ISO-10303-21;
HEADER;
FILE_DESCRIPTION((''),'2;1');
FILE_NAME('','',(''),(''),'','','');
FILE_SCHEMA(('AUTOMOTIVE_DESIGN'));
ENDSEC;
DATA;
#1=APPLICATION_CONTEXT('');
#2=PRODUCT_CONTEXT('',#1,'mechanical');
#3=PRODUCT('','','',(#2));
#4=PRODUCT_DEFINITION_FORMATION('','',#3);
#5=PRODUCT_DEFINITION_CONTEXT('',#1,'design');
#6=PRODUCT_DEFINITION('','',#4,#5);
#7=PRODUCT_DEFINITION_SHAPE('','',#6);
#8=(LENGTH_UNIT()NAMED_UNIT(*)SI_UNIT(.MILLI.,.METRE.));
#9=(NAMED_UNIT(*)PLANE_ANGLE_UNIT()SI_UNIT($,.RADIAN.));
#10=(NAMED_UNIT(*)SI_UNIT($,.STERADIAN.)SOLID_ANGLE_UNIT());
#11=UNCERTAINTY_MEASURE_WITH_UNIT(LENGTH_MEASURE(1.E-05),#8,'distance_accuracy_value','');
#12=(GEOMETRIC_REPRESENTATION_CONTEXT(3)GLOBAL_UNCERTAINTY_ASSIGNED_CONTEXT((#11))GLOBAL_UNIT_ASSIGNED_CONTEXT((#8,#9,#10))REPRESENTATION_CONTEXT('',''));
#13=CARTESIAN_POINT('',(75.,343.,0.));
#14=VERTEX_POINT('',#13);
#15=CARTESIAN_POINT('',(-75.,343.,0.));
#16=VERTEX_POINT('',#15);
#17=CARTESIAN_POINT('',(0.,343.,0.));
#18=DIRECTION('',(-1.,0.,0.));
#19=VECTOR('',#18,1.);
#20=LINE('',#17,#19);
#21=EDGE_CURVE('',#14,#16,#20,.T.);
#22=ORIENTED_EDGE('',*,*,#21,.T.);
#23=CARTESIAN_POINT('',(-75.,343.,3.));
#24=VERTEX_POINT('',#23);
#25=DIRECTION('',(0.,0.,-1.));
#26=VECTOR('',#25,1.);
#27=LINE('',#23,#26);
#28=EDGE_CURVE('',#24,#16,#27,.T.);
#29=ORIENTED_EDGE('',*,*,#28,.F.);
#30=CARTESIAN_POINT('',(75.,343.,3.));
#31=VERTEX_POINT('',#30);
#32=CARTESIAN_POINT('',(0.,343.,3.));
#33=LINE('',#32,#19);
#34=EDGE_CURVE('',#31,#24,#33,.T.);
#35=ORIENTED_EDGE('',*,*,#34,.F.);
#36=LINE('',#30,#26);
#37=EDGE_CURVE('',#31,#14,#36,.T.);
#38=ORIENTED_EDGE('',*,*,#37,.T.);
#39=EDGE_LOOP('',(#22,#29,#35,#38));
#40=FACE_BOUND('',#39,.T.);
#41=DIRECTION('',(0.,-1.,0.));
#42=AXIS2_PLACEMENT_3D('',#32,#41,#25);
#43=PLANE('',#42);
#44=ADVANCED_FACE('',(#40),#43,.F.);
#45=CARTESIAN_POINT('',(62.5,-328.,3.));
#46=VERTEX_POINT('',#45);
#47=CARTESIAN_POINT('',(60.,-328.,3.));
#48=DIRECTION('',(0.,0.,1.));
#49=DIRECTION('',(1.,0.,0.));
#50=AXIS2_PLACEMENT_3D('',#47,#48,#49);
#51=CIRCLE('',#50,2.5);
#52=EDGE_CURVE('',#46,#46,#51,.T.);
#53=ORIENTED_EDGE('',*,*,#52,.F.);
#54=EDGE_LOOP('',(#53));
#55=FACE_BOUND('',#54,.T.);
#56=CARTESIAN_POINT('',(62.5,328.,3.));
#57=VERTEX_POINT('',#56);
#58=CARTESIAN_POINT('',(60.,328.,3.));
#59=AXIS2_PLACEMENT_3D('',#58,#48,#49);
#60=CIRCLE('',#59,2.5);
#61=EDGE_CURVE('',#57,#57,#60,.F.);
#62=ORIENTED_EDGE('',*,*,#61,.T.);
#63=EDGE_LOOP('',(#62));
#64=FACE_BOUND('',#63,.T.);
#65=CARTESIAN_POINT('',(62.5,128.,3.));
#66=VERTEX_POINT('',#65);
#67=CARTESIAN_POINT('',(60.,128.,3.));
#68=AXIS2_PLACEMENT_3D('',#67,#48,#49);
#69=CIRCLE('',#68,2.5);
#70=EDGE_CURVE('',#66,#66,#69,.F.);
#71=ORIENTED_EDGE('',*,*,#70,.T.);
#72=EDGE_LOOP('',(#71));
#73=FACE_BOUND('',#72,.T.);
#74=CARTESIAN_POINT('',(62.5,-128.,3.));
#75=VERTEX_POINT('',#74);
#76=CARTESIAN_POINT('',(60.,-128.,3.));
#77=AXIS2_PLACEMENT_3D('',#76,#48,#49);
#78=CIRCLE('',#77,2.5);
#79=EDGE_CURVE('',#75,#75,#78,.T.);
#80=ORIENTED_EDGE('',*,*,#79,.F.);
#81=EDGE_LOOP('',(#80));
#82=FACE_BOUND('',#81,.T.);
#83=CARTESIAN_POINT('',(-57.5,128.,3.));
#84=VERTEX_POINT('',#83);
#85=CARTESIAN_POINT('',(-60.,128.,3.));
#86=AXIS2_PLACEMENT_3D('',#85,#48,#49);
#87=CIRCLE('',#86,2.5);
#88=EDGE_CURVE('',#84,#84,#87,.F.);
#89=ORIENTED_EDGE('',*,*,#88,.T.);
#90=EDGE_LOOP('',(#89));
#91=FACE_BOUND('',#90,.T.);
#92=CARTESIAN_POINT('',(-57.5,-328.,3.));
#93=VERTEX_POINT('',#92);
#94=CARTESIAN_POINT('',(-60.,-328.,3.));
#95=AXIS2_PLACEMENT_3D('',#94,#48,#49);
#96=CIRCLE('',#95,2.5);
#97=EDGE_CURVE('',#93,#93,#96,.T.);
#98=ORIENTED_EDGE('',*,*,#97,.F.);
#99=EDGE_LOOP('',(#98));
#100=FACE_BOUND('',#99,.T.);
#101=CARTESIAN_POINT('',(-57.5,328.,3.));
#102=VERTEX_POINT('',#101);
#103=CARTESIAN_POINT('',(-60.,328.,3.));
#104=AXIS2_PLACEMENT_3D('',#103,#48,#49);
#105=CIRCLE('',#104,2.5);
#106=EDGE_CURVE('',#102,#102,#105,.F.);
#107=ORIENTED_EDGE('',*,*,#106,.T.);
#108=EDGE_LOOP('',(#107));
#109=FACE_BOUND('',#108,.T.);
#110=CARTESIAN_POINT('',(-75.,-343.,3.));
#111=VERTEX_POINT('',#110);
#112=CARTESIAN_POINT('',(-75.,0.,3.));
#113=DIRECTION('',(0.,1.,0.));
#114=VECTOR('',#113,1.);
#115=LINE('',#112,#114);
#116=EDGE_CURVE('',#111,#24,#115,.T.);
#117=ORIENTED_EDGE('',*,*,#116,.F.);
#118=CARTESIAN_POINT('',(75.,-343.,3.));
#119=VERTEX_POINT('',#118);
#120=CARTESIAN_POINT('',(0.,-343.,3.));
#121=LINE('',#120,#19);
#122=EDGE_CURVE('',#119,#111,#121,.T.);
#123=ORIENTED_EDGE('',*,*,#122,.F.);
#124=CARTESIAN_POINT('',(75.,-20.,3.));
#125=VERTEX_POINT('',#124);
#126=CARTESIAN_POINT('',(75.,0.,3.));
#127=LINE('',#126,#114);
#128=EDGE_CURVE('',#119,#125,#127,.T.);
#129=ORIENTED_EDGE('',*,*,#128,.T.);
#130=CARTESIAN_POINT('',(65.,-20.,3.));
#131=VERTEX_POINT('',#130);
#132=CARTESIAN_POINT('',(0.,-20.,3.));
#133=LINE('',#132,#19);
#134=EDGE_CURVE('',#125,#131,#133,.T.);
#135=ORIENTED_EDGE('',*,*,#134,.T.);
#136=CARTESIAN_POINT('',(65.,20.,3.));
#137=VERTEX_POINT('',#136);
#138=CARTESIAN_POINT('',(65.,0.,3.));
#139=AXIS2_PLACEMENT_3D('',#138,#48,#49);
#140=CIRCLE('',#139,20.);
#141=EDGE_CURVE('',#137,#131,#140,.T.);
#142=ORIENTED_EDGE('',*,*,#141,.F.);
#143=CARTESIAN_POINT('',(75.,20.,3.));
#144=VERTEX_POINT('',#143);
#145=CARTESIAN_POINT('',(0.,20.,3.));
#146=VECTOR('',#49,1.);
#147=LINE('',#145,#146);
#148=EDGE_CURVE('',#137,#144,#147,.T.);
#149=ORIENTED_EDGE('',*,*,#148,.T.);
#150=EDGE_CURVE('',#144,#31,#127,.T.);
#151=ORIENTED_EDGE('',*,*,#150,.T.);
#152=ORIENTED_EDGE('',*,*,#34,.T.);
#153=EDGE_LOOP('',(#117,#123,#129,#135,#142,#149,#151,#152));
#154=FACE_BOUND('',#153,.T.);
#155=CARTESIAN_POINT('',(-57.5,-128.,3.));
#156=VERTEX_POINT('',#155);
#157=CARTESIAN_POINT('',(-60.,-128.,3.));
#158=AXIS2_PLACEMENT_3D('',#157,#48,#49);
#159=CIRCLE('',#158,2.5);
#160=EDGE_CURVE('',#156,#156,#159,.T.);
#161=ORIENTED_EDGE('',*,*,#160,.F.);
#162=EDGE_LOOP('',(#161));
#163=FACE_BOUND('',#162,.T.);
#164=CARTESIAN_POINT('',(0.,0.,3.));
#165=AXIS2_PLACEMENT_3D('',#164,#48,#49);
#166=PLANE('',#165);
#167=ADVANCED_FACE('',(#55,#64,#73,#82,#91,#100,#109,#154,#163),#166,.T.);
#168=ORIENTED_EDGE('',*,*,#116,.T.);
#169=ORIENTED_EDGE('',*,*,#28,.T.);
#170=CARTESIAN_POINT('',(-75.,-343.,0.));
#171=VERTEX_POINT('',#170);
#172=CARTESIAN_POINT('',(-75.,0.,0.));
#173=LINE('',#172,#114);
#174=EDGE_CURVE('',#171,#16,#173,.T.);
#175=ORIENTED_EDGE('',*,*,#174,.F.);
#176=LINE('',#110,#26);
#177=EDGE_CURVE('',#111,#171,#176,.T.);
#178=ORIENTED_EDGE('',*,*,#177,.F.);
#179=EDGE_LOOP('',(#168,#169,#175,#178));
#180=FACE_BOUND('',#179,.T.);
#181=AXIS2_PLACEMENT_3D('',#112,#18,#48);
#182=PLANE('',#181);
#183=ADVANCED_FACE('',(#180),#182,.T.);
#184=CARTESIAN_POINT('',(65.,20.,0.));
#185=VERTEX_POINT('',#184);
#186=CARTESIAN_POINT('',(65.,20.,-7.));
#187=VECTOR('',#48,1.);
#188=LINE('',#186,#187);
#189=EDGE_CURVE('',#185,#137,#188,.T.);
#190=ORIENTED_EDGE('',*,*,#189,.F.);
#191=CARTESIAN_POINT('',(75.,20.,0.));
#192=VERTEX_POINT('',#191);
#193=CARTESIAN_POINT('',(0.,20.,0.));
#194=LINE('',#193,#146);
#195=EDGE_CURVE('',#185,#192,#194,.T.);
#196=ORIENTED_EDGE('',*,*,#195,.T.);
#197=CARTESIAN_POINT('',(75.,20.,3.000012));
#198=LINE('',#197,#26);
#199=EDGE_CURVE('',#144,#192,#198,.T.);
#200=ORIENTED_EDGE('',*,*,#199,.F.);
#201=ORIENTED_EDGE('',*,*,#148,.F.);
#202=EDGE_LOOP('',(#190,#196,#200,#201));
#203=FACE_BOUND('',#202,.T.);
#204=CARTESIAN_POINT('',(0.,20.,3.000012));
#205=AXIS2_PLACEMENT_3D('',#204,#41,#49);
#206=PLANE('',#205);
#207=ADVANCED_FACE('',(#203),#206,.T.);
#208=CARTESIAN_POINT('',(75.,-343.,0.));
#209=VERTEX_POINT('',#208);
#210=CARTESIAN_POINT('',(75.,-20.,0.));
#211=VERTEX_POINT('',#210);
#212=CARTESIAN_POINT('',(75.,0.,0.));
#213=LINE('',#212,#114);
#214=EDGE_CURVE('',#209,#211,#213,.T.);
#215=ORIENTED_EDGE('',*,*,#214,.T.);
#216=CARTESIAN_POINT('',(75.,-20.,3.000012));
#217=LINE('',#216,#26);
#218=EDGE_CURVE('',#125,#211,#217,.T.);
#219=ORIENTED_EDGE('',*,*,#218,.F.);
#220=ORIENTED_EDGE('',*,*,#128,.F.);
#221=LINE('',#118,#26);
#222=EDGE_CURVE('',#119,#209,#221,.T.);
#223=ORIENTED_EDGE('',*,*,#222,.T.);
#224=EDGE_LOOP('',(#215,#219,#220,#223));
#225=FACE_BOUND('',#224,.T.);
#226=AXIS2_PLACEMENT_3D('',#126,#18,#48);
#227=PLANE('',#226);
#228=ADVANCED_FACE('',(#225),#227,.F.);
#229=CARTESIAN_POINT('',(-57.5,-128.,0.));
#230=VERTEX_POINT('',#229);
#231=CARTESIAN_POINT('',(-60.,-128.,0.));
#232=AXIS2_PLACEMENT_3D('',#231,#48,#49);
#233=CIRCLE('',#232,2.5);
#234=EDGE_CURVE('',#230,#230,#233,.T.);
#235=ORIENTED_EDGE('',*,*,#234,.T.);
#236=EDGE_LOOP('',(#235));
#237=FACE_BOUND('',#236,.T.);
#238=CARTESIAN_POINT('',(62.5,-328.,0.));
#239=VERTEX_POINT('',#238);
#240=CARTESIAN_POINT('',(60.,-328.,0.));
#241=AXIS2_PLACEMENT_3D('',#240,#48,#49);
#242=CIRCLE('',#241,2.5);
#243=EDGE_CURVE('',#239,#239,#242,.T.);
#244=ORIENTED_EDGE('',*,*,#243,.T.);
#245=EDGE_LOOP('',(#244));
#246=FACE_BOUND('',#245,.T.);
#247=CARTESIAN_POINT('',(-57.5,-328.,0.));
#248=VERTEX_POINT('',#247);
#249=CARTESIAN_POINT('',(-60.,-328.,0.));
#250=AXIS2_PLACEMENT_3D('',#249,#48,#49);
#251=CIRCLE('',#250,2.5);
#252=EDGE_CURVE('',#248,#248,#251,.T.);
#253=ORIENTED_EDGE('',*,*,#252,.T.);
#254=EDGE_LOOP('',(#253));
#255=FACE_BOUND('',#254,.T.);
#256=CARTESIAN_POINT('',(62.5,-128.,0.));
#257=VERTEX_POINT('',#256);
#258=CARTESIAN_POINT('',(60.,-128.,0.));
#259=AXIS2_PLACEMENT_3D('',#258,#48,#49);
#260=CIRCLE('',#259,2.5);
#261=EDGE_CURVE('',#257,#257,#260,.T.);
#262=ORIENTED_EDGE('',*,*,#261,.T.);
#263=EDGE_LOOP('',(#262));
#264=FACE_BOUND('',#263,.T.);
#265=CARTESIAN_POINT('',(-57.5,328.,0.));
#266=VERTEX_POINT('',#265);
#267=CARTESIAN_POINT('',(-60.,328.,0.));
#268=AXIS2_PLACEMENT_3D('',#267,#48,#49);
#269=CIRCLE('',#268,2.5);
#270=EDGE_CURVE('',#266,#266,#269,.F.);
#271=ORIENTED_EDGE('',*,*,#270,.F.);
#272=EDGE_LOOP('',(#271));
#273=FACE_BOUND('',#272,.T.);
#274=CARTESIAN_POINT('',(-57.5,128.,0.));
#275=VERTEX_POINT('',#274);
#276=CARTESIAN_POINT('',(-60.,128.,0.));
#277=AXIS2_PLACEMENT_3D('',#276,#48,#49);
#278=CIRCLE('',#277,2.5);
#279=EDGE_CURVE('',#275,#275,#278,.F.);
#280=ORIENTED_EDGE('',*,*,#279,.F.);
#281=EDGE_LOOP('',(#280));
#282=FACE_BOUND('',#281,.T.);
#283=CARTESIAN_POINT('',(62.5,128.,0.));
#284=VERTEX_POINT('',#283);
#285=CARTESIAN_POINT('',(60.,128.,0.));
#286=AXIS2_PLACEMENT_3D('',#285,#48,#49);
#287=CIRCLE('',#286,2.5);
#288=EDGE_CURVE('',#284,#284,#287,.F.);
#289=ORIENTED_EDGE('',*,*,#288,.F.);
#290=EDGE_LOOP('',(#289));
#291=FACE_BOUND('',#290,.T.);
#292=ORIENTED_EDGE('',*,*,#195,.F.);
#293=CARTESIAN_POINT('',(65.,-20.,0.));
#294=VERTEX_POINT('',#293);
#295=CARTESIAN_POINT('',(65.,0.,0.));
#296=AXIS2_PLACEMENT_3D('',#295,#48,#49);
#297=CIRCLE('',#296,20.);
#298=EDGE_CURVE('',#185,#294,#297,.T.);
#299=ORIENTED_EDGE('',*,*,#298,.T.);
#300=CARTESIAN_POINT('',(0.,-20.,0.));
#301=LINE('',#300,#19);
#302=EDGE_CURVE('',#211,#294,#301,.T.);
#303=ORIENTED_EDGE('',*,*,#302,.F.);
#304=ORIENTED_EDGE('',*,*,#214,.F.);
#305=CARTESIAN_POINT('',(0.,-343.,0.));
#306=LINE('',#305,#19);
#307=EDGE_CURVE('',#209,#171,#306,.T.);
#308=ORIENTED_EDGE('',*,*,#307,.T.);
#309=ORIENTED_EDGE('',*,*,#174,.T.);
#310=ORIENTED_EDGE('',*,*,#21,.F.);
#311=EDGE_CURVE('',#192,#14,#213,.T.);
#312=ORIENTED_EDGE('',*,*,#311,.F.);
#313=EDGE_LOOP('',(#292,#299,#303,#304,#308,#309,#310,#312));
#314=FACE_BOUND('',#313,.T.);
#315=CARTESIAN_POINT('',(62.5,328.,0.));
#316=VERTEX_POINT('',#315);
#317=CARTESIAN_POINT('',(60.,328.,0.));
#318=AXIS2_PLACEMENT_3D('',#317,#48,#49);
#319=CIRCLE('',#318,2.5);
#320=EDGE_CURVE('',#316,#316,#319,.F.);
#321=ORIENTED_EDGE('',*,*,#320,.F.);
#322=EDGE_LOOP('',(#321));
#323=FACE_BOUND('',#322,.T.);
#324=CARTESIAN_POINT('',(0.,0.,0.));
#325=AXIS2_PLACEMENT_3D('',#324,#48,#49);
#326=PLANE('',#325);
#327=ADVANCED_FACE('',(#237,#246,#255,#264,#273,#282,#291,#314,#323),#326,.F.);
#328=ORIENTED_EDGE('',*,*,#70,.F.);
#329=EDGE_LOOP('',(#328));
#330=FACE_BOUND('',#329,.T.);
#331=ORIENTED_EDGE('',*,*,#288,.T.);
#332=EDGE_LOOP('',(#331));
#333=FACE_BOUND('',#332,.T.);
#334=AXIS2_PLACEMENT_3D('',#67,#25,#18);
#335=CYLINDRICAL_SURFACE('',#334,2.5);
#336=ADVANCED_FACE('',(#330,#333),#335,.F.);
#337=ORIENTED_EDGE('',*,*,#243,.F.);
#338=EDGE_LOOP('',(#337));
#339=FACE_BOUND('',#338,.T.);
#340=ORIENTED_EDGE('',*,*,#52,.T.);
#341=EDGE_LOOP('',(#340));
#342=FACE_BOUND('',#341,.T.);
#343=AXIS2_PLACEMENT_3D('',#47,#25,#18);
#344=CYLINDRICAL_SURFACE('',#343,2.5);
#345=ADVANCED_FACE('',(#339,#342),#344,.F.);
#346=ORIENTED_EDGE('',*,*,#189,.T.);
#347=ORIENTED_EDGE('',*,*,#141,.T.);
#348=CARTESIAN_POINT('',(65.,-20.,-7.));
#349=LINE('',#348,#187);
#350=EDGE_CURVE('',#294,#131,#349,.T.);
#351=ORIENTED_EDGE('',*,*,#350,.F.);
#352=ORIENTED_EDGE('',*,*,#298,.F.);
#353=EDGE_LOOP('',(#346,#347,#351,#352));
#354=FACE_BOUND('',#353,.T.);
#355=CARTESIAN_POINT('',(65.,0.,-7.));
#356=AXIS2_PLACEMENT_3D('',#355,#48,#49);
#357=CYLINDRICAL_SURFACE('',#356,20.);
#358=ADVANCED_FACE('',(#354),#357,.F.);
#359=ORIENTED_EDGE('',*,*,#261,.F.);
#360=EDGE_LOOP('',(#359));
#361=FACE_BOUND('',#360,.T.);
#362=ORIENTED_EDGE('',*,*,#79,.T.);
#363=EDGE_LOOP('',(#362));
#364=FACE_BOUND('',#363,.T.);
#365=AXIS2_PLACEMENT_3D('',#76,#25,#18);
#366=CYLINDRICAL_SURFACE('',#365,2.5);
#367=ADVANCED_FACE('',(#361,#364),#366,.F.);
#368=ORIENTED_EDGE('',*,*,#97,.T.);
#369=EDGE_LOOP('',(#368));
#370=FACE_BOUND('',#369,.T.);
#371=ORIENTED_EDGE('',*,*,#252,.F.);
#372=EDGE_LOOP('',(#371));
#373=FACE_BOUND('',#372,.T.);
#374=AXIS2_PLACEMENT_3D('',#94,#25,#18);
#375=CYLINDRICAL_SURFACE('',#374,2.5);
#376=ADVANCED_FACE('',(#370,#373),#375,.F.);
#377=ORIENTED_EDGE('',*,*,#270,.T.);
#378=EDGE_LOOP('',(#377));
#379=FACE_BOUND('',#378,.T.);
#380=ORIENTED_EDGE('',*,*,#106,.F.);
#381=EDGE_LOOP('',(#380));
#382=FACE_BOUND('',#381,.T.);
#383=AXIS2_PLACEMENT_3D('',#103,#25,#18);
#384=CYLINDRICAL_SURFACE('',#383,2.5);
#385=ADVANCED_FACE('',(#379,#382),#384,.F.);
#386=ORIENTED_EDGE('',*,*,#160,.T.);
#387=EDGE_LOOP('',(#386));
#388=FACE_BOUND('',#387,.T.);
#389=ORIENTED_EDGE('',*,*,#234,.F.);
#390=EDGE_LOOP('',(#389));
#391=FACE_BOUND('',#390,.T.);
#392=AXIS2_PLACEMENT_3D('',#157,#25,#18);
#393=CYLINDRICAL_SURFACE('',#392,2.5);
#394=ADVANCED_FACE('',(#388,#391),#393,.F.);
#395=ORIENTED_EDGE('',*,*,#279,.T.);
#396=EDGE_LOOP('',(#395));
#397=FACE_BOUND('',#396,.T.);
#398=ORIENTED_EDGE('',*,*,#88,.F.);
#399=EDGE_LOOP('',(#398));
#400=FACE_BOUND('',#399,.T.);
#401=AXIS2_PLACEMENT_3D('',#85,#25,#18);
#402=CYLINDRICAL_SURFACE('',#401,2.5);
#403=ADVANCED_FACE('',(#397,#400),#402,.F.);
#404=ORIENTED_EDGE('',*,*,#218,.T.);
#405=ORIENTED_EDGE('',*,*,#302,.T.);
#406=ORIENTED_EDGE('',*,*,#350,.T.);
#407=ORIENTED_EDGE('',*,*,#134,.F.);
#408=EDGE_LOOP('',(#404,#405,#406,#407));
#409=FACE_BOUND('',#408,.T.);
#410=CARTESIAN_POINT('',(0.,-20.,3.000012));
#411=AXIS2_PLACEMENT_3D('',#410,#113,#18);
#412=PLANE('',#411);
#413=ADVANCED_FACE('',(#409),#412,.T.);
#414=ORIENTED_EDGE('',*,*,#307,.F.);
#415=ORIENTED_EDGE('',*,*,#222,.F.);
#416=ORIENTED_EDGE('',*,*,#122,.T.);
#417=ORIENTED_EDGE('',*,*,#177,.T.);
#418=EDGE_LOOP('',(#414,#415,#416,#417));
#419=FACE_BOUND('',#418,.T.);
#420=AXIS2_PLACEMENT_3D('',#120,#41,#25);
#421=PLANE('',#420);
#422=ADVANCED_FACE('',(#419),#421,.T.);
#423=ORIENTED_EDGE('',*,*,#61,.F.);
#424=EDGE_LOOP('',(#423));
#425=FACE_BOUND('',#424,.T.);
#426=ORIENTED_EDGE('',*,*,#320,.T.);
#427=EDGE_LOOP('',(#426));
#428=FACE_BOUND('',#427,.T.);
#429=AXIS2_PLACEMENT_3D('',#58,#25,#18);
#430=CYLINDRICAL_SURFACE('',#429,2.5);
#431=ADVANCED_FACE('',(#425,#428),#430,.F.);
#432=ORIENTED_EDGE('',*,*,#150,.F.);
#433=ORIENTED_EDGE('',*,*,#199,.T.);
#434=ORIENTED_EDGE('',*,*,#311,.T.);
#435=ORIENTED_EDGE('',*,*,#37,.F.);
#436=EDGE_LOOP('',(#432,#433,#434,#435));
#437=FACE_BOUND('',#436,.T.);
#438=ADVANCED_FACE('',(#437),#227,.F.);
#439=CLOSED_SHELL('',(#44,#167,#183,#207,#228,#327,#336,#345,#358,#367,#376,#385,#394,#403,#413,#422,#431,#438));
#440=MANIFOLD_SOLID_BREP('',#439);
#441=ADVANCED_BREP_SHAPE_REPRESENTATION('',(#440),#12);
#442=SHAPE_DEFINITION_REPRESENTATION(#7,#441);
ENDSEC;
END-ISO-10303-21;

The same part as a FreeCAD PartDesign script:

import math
import FreeCAD as App
import Part
import Sketcher
from FreeCAD import Vector
Q = App.Units.Quantity

doc = App.newDocument("Part")
body = doc.addObject("PartDesign::Body", "Body")

sketch1 = body.newObject("Sketcher::SketchObject", "Sketch")
sketch1.AttachmentSupport = (doc.getObject("XY_Plane"), [""])
sketch1.MapMode = "FlatFace"
sketch1.addGeometry([
    Part.LineSegment(Vector(-75, -343, 0), Vector(75, -343, 0)),
    Part.LineSegment(Vector(75, -343, 0), Vector(75, 343, 0)),
    Part.LineSegment(Vector(75, 343, 0), Vector(-75, 343, 0)),
    Part.LineSegment(Vector(-75, 343, 0), Vector(-75, -343, 0)),
    Part.Circle(Vector(60, -328, 0), Vector(0, 0, 1), 2.5),
    Part.Circle(Vector(60, -128, 0), Vector(0, 0, 1), 2.5),
    Part.Circle(Vector(60, 128, 0), Vector(0, 0, 1), 2.5),
    Part.Circle(Vector(60, 328, 0), Vector(0, 0, 1), 2.5),
    Part.Circle(Vector(-60, -328, 0), Vector(0, 0, 1), 2.5),
    Part.Circle(Vector(-60, -128, 0), Vector(0, 0, 1), 2.5),
    Part.Circle(Vector(-60, 128, 0), Vector(0, 0, 1), 2.5),
    Part.Circle(Vector(-60, 328, 0), Vector(0, 0, 1), 2.5),
], False)
sketch1.addConstraint([
    Sketcher.Constraint("Coincident", 0, 2, 1, 1),
    Sketcher.Constraint("Coincident", 1, 2, 2, 1),
    Sketcher.Constraint("Coincident", 2, 2, 3, 1),
    Sketcher.Constraint("Coincident", 3, 2, 0, 1),
    Sketcher.Constraint("Horizontal", 0),
    Sketcher.Constraint("Vertical", 1),
    Sketcher.Constraint("Horizontal", 2),
    Sketcher.Constraint("Vertical", 3),
    Sketcher.Constraint("Equal", 4, 5),
    Sketcher.Constraint("Equal", 5, 6),
    Sketcher.Constraint("Equal", 6, 7),
    Sketcher.Constraint("Equal", 7, 8),
    Sketcher.Constraint("Equal", 8, 9),
    Sketcher.Constraint("Equal", 9, 10),
    Sketcher.Constraint("Equal", 10, 11),
    Sketcher.Constraint("Symmetric", 7, 3, 8, 3, -1, 1),
    Sketcher.Constraint("Symmetric", 6, 3, 9, 3, -1, 1),
    Sketcher.Constraint("Symmetric", 5, 3, 10, 3, -1, 1),
    Sketcher.Constraint("Symmetric", 4, 3, 11, 3, -1, 1),
    Sketcher.Constraint("Symmetric", 0, 2, 2, 2, -1, 1),
    Sketcher.Constraint("Symmetric", 4, 3, 8, 3, -2),
    Sketcher.Constraint("Symmetric", 5, 3, 9, 3, -2),
    Sketcher.Constraint("Vertical", 4, 3, 5, 3),
    Sketcher.Constraint("Diameter", 4, Q("5 mm")),
    Sketcher.Constraint("DistanceX", 0, 1, 0, 2, Q("150 mm")),
    Sketcher.Constraint("DistanceY", 1, 1, 1, 2, Q("686 mm")),
    Sketcher.Constraint("DistanceX", -1, 1, 4, 3, Q("60 mm")),
    Sketcher.Constraint("DistanceY", 4, 3, -1, 1, Q("328 mm")),
    Sketcher.Constraint("DistanceY", 5, 3, -1, 1, Q("128 mm")),
])
pad1 = body.newObject("PartDesign::Pad", "Pad")
pad1.Profile = sketch1
pad1.Length = 3

sketch2 = body.newObject("Sketcher::SketchObject", "Sketch001")
sketch2.AttachmentSupport = (doc.getObject("XY_Plane"), [""])
sketch2.MapMode = "FlatFace"
sketch2.AttachmentOffset = App.Placement(Vector(0, 0, 3), App.Rotation())
sketch2.addGeometry([
    Part.LineSegment(Vector(75, -20, 0), Vector(75, 20, 0)),
    Part.LineSegment(Vector(75, 20, 0), Vector(65, 20, 0)),
    Part.ArcOfCircle(Part.Circle(Vector(65, 0, 0), Vector(0, 0, 1), 20), math.radians(90), math.radians(270)),
    Part.LineSegment(Vector(65, -20, 0), Vector(75, -20, 0)),
], False)
sketch2.addConstraint([
    Sketcher.Constraint("Coincident", 0, 2, 1, 1),
    Sketcher.Constraint("Tangent", 1, 2, 2, 1),
    Sketcher.Constraint("Tangent", 2, 2, 3, 1),
    Sketcher.Constraint("Coincident", 3, 2, 0, 1),
    Sketcher.Constraint("Vertical", 0),
    Sketcher.Constraint("Horizontal", 1),
    Sketcher.Constraint("Horizontal", 3),
    Sketcher.Constraint("PointOnObject", 2, 3, -1),
    Sketcher.Constraint("Radius", 2, Q("20 mm")),
    Sketcher.Constraint("DistanceX", 1, 2, 1, 1, Q("10 mm")),
    Sketcher.Constraint("DistanceX", -1, 1, 2, 3, Q("65 mm")),
])
pocket1 = body.newObject("PartDesign::Pocket", "Pocket")
pocket1.Profile = sketch2
pocket1.Type = "ThroughAll"
pocket1.Midplane = True

doc.recompute()
